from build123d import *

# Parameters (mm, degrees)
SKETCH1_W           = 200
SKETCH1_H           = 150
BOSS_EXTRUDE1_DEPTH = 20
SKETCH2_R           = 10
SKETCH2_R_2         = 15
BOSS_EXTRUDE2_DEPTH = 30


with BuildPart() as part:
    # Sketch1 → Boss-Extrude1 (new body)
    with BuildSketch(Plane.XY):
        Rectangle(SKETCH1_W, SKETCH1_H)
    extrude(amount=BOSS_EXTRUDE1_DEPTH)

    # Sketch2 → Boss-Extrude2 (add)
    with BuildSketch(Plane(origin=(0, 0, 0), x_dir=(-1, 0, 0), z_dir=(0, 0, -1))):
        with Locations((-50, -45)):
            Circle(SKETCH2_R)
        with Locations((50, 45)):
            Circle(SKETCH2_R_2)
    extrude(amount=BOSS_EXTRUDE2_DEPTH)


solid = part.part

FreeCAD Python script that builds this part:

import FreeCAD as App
import Part
import Sketcher

V = App.Vector
Q = App.Units.Quantity


def add_polygon(sketch, points):
    """Adds a closed chain of lines whose ends are joined by coincident constraints."""
    first, n = sketch.GeometryCount, len(points)
    for a, b in zip(points, points[1:] + points[:1]):
        sketch.addGeometry(Part.LineSegment(App.Vector(*a, 0), App.Vector(*b, 0)), False)
    for i in range(n):
        sketch.addConstraint(Sketcher.Constraint("Coincident", first + i, 2, first + (i + 1) % n, 1))

doc = App.newDocument("Part")
body = doc.addObject("PartDesign::Body", "Body")

sketch1 = doc.addObject("Sketcher::SketchObject", "Sketch")
body.addObject(sketch1)
sketch1.AttachmentSupport = (doc.XY_Plane, [""])
sketch1.MapMode = "FlatFace"
add_polygon(sketch1, [(-100, 75), (-100, -75), (100, -75), (100, 75)])
sketch1.addConstraint(Sketcher.Constraint("Vertical", 0))
sketch1.addConstraint(Sketcher.Constraint("Horizontal", 1))
sketch1.addConstraint(Sketcher.Constraint("Vertical", 2))
sketch1.addConstraint(Sketcher.Constraint("Horizontal", 3))
sketch1.addConstraint(Sketcher.Constraint("Symmetric", 0, 2, 2, 2, -1, 1))
sketch1.addConstraint(Sketcher.Constraint("DistanceX", 1, 1, 1, 2, Q("200 mm")))
sketch1.addConstraint(Sketcher.Constraint("DistanceY", 0, 2, 0, 1, Q("150 mm")))
pad1 = doc.addObject("PartDesign::Pad", "Pad")
body.addObject(pad1)
pad1.Profile = sketch1
pad1.Length = 20

sketch2 = doc.addObject("Sketcher::SketchObject", "Sketch001")
body.addObject(sketch2)
sketch2.AttachmentSupport = (doc.XY_Plane, [""])
sketch2.MapMode = "FlatFace"
sketch2.addGeometry(Part.Circle(V(50, -45, 0), V(0, 0, 1), 10), False)
sketch2.addGeometry(Part.Circle(V(-50, 45, 0), V(0, 0, 1), 15), False)
sketch2.addConstraint(Sketcher.Constraint("Symmetric", 0, 3, 1, 3, -1, 1))
sketch2.addConstraint(Sketcher.Constraint("Diameter", 0, Q("20 mm")))
sketch2.addConstraint(Sketcher.Constraint("Diameter", 1, Q("30 mm")))
sketch2.addConstraint(Sketcher.Constraint("DistanceX", -1, 1, 0, 3, Q("50 mm")))
sketch2.addConstraint(Sketcher.Constraint("DistanceY", 0, 3, -1, 1, Q("45 mm")))
pad2 = doc.addObject("PartDesign::Pad", "Pad001")
body.addObject(pad2)
pad2.Profile = sketch2
pad2.Length = 30
pad2.Reversed = True

doc.recompute()
